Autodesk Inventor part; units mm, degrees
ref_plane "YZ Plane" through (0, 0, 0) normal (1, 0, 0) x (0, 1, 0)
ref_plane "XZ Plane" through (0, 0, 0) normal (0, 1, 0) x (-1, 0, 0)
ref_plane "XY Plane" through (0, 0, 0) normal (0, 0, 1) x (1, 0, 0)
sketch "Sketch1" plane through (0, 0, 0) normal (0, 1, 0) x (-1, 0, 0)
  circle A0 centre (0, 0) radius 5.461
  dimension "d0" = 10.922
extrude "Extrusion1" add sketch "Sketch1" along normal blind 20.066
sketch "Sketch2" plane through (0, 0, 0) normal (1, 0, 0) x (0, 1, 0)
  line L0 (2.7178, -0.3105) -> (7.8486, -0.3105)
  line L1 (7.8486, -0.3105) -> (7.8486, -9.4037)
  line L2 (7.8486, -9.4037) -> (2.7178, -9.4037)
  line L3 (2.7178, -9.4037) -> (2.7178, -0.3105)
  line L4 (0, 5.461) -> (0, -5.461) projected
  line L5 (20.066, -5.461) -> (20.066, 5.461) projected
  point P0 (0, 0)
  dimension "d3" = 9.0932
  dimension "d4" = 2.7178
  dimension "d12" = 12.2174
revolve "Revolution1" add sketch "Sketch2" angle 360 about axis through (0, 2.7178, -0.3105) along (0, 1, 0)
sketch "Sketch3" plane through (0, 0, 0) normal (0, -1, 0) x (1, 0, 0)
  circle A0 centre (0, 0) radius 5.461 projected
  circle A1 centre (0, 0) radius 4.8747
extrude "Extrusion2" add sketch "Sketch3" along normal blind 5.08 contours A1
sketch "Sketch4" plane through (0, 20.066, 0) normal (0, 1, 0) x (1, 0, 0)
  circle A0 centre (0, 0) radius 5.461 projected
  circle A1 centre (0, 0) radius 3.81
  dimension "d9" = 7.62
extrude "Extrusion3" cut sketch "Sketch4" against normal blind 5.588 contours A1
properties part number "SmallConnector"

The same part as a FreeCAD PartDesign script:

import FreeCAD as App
import Part
import Sketcher
Q = App.Units.Quantity


def add_polygon(sketch, points):
    """Adds a closed chain of lines whose ends are joined by coincident constraints."""
    first, n = sketch.GeometryCount, len(points)
    for a, b in zip(points, points[1:] + points[:1]):
        sketch.addGeometry(Part.LineSegment(App.Vector(*a, 0), App.Vector(*b, 0)), False)
    for i in range(n):
        sketch.addConstraint(Sketcher.Constraint("Coincident", first + i, 2, first + (i + 1) % n, 1))

doc = App.newDocument("Part")
body = doc.addObject("PartDesign::Body", "Body")

# Sketch on XZ plane
sketch1 = body.newObject("Sketcher::SketchObject", "Sketch")
sketch1.AttachmentSupport = (doc.getObject("XZ_Plane"), [""])
sketch1.MapMode = "FlatFace"
sketch1.addGeometry(Part.Circle(App.Vector(0, 0, 0), App.Vector(0, 0, 1), 5), False)
sketch1.addConstraint([
    Sketcher.Constraint("Coincident", 0, 3, -1, 1),
    Sketcher.Constraint("Diameter", 0, Q("0.43 in")),
])
pad1 = body.newObject("PartDesign::Pad", "Pad")
pad1.Profile = sketch1
pad1.Length = Q("0.79 in")
pad1.Reversed = True

# Sketch on YZ plane
sketch2 = body.newObject("Sketcher::SketchObject", "Sketch001")
sketch2.AttachmentSupport = (doc.getObject("YZ_Plane"), [""])
sketch2.MapMode = "FlatFace"
add_polygon(sketch2, [(8, 0), (3, 0), (3, -9), (8, -9)])  # lines 0-3
sketch2.addGeometry(Part.LineSegment(App.Vector(3, 0, 0), App.Vector(8, 0, 0)), True)  # axis
sketch2.addConstraint([
    Sketcher.Constraint("Horizontal", 0),
    Sketcher.Constraint("Vertical", 1),
    Sketcher.Constraint("Horizontal", 2),
    Sketcher.Constraint("Vertical", 3),
    Sketcher.Constraint("Horizontal", 4),
    Sketcher.Constraint("Coincident", 4, 1, 0, 2),
    Sketcher.Constraint("Vertical", 2, 2, 4, 2),
    Sketcher.Constraint("DistanceY", 1, 2, 1, 1, Q("0.358 in")),
    Sketcher.Constraint("DistanceX", -1, 1, 0, 2, Q("0.107 in")),
    Sketcher.Constraint("DistanceX", 0, 2, 0, 1, Q("0.202 in")),
    Sketcher.Constraint("DistanceY", 0, 2, -1, 1, Q("0.3105 mm")),
])
revolution = body.newObject("PartDesign::Revolution", "Revolution")
revolution.Profile = sketch2
revolution.ReferenceAxis = (sketch2, ["Axis0"])
revolution.Angle = 360

# Sketch on XZ plane
sketch3 = body.newObject("Sketcher::SketchObject", "Sketch002")
sketch3.AttachmentSupport = (doc.getObject("XZ_Plane"), [""])
sketch3.MapMode = "FlatFace"
sketch3.addGeometry(Part.Circle(App.Vector(0, 0, 0), App.Vector(0, 0, 1), 4.9), False)
sketch3.addConstraint([
    Sketcher.Constraint("Coincident", 0, 3, -1, 1),
    Sketcher.Constraint("Diameter", 0, Q("9.7494 mm")),
])
pad2 = body.newObject("PartDesign::Pad", "Pad001")
pad2.Profile = sketch3
pad2.Length = Q("0.2 in")

# Sketch on XZ plane
sketch4 = body.newObject("Sketcher::SketchObject", "Sketch003")
sketch4.AttachmentSupport = (doc.getObject("XZ_Plane"), [""])
sketch4.MapMode = "FlatFace"
sketch4.AttachmentOffset = App.Placement(App.Vector(0, 0, -0.79 * 25.4), App.Rotation())
sketch4.addGeometry(Part.Circle(App.Vector(0, 0, 0), App.Vector(0, 0, 1), 3.8), False)
sketch4.addConstraint([
    Sketcher.Constraint("Coincident", 0, 3, -1, 1),
    Sketcher.Constraint("Diameter", 0, Q("0.3 in")),
])
pocket1 = body.newObject("PartDesign::Pocket", "Pocket")
pocket1.Profile = sketch4
pocket1.Length = Q("0.22 in")
pocket1.Reversed = True

doc.recompute()
